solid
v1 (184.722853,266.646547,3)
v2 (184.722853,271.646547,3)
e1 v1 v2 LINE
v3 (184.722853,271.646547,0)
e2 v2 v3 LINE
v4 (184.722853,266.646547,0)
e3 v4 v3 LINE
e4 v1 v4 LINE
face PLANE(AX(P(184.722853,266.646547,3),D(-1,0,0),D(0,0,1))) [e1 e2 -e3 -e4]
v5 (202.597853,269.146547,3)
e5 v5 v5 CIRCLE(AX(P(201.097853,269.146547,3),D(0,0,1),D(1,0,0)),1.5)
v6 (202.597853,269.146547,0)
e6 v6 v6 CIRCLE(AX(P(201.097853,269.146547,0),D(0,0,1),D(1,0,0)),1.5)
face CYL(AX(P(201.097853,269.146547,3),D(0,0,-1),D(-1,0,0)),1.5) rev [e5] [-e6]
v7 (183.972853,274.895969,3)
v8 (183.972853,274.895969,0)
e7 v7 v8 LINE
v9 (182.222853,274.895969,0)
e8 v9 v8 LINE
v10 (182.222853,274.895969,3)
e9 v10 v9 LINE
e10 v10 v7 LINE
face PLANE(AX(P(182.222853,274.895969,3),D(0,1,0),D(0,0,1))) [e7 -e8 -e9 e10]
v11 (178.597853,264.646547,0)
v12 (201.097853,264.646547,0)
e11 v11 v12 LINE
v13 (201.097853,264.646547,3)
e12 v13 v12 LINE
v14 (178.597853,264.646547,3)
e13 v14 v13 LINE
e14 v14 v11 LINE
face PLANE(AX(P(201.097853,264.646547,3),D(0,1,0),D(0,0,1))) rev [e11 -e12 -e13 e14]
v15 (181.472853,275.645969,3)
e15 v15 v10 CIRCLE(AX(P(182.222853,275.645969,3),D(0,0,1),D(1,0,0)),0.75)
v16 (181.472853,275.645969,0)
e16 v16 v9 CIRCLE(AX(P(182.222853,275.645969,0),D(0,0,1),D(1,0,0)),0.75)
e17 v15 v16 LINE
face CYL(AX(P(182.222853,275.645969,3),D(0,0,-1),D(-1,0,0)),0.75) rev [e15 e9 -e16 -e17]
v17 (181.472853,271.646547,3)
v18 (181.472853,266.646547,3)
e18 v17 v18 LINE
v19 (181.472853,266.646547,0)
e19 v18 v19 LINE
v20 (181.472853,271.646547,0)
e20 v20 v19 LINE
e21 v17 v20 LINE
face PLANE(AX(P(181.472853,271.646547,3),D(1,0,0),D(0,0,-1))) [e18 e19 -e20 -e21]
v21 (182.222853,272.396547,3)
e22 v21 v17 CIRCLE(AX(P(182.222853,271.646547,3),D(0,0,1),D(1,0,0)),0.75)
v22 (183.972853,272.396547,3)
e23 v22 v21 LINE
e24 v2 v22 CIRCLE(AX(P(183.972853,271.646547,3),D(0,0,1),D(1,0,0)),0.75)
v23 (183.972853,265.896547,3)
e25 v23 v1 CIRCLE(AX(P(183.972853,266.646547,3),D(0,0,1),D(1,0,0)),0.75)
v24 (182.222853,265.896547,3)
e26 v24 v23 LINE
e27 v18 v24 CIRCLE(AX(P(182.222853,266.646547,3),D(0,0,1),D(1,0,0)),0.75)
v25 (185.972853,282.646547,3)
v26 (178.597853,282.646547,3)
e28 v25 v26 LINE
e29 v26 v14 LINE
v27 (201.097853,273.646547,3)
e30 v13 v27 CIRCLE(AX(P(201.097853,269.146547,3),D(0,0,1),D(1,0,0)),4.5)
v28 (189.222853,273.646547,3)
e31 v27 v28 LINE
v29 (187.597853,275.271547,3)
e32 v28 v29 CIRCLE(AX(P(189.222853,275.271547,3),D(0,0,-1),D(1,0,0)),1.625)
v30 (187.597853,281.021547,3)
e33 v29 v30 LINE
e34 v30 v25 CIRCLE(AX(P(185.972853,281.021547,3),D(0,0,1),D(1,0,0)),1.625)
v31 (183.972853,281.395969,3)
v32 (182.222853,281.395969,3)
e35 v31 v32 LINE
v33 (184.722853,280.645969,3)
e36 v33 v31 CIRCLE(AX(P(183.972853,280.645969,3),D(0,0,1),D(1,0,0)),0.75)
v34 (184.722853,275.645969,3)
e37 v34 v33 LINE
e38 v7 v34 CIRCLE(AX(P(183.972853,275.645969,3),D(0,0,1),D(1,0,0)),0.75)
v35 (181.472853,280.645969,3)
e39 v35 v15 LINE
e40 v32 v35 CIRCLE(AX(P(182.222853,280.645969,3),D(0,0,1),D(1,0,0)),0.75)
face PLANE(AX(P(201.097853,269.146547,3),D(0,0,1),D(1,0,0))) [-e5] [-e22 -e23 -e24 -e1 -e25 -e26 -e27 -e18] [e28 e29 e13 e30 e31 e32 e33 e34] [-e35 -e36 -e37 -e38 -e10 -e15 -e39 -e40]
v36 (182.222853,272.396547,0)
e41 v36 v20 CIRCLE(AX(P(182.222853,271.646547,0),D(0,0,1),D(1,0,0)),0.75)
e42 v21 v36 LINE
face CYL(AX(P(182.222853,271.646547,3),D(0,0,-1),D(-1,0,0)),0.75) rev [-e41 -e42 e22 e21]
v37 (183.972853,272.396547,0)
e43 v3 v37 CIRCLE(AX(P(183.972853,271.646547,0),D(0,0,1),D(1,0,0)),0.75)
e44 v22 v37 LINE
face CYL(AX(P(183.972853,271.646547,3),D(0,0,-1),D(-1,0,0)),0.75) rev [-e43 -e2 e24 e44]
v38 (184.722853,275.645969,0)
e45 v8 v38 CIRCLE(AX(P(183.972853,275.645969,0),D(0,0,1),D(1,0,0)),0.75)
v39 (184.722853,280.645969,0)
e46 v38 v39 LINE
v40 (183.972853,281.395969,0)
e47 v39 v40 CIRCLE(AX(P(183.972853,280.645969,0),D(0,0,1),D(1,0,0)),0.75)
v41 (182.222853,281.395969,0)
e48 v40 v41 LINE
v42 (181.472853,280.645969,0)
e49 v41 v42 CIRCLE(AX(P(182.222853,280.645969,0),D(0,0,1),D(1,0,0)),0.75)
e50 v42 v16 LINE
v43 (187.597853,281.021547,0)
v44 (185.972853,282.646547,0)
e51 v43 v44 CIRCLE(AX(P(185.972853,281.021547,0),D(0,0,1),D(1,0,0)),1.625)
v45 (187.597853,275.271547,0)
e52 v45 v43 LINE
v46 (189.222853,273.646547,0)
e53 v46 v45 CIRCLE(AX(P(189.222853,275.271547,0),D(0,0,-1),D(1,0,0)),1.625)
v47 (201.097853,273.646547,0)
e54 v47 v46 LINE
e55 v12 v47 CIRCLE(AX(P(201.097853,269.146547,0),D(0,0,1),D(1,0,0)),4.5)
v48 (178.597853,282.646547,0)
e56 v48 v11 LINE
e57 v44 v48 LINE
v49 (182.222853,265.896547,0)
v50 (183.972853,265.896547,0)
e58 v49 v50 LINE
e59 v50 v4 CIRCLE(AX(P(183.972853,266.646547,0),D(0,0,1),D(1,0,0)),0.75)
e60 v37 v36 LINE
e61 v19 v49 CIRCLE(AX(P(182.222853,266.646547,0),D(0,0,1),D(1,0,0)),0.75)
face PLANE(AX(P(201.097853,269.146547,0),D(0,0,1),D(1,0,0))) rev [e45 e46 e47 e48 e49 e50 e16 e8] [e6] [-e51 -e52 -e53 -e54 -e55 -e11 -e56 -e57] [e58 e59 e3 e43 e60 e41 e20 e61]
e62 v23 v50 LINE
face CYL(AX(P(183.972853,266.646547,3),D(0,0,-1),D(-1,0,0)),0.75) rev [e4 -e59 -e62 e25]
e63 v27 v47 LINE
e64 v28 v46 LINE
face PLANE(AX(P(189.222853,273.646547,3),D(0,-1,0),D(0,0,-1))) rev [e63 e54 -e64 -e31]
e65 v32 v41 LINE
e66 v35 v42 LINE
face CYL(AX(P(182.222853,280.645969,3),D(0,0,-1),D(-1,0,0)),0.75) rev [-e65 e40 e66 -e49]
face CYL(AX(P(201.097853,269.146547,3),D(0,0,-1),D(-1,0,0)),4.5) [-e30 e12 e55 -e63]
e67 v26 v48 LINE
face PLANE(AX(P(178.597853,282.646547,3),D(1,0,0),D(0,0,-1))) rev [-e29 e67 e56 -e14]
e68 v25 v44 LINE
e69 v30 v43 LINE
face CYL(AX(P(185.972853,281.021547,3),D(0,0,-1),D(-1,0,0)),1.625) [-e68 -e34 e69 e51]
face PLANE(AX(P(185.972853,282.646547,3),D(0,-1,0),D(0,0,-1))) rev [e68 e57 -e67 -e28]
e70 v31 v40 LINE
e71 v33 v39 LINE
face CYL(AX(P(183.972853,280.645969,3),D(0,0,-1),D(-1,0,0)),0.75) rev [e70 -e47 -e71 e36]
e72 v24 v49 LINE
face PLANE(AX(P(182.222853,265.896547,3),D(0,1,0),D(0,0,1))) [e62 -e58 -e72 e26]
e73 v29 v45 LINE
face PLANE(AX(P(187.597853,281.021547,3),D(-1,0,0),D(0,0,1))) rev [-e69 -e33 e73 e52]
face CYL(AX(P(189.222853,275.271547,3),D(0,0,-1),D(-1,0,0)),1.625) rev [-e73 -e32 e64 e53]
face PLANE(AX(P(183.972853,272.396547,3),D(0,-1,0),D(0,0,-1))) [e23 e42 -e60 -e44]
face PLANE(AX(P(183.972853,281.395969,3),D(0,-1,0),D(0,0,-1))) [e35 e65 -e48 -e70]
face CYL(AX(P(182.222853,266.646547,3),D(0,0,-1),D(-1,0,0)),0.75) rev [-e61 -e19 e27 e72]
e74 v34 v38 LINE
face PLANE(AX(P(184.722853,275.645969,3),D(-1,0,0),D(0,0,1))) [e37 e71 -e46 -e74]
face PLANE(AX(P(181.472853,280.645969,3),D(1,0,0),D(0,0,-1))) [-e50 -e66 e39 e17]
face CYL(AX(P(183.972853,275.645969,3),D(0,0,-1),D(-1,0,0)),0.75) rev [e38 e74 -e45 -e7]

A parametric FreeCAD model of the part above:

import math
import FreeCAD as App
import Part
import Sketcher

V = App.Vector
Q = App.Units.Quantity

doc = App.newDocument("Part")
params = doc.addObject("Spreadsheet::Sheet", "Params")
for row, (alias, value) in enumerate([
    ("sketch1_diameter", "3 mm"),
    ("sketch1_radius", "4.5 mm"),
    ("sketch1_height", "18 mm"),
    ("sketch1_height2", "5 mm"),
    ("sketch1_radius2", "0.75 mm"),
    ("pad1_length", "3 mm"),
], start=1):
    params.set(f"A{row}", alias)
    params.set(f"B{row}", "=" + value)
    params.setAlias(f"B{row}", alias)

body = doc.addObject("PartDesign::Body", "Body")

# Sketch on XY plane
sketch1 = doc.addObject("Sketcher::SketchObject", "Sketch")
body.addObject(sketch1)
sketch1.AttachmentSupport = (doc.XY_Plane, [""])
sketch1.MapMode = "FlatFace"
sketch1.addGeometry([
    Part.LineSegment(V(186, 282.6, 0), V(178.6, 282.6, 0)),  # 0
    Part.LineSegment(V(178.6, 282.6, 0), V(178.6, 264.6, 0)),  # 1
    Part.LineSegment(V(178.6, 264.6, 0), V(201.1, 264.6, 0)),  # 2
    Part.ArcOfCircle(Part.Circle(V(201.1, 269.1, 0), V(0, 0, 1), 4.5), math.radians(-90), math.radians(90)),  # 3
    Part.LineSegment(V(201.1, 273.6, 0), V(189.2, 273.6, 0)),  # 4
    Part.ArcOfCircle(Part.Circle(V(189.2, 275.3, 0), V(0, 0, 1), 1.6), math.radians(-180), math.radians(-90)),  # 5
    Part.LineSegment(V(187.6, 275.3, 0), V(187.6, 281, 0)),  # 6
    Part.ArcOfCircle(Part.Circle(V(186, 281, 0), V(0, 0, 1), 1.6), math.radians(0), math.radians(90)),  # 7
    Part.LineSegment(V(184, 265.9, 0), V(182.2, 265.9, 0)),  # 8
    Part.ArcOfCircle(Part.Circle(V(182.2, 266.6, 0), V(0, 0, 1), 0.8), math.radians(180), math.radians(270)),  # 9
    Part.LineSegment(V(181.5, 266.6, 0), V(181.5, 271.6, 0)),  # 10
    Part.ArcOfCircle(Part.Circle(V(182.2, 271.6, 0), V(0, 0, 1), 0.8), math.radians(90), math.radians(180)),  # 11
    Part.LineSegment(V(182.2, 272.4, 0), V(184, 272.4, 0)),  # 12
    Part.ArcOfCircle(Part.Circle(V(184, 271.6, 0), V(0, 0, 1), 0.8), math.radians(0), math.radians(90)),  # 13
    Part.LineSegment(V(184.7, 271.6, 0), V(184.7, 266.6, 0)),  # 14
    Part.ArcOfCircle(Part.Circle(V(184, 266.6, 0), V(0, 0, 1), 0.8), math.radians(-90), math.radians(0)),  # 15
    Part.Circle(V(201.1, 269.1, 0), V(0, 0, 1), 1.5),  # 16
    Part.LineSegment(V(184, 274.9, 0), V(182.2, 274.9, 0)),  # 17
    Part.ArcOfCircle(Part.Circle(V(182.2, 275.6, 0), V(0, 0, 1), 0.8), math.radians(180), math.radians(270)),  # 18
    Part.LineSegment(V(181.5, 275.6, 0), V(181.5, 280.6, 0)),  # 19
    Part.ArcOfCircle(Part.Circle(V(182.2, 280.6, 0), V(0, 0, 1), 0.8), math.radians(90), math.radians(180)),  # 20
    Part.LineSegment(V(182.2, 281.4, 0), V(184, 281.4, 0)),  # 21
    Part.ArcOfCircle(Part.Circle(V(184, 280.6, 0), V(0, 0, 1), 0.8), math.radians(0), math.radians(90)),  # 22
    Part.LineSegment(V(184.7, 280.6, 0), V(184.7, 275.6, 0)),  # 23
    Part.ArcOfCircle(Part.Circle(V(184, 275.6, 0), V(0, 0, 1), 0.8), math.radians(-90), math.radians(0)),  # 24
], False)
sketch1.addConstraint([
    Sketcher.Constraint("Coincident", 0, 2, 1, 1),
    Sketcher.Constraint("Coincident", 1, 2, 2, 1),
    Sketcher.Constraint("Tangent", 2, 2, 3, 1),
    Sketcher.Constraint("Tangent", 3, 2, 4, 1),
    Sketcher.Constraint("Tangent", 4, 2, 5, 2),
    Sketcher.Constraint("Tangent", 5, 1, 6, 1),
    Sketcher.Constraint("Tangent", 6, 2, 7, 1),
    Sketcher.Constraint("Tangent", 7, 2, 0, 1),
    Sketcher.Constraint("Tangent", 8, 2, 9, 2),
    Sketcher.Constraint("Tangent", 9, 1, 10, 1),
    Sketcher.Constraint("Tangent", 10, 2, 11, 2),
    Sketcher.Constraint("Tangent", 11, 1, 12, 1),
    Sketcher.Constraint("Tangent", 12, 2, 13, 2),
    Sketcher.Constraint("Tangent", 13, 1, 14, 1),
    Sketcher.Constraint("Tangent", 14, 2, 15, 2),
    Sketcher.Constraint("Tangent", 15, 1, 8, 1),
    Sketcher.Constraint("Tangent", 17, 2, 18, 2),
    Sketcher.Constraint("Tangent", 18, 1, 19, 1),
    Sketcher.Constraint("Tangent", 19, 2, 20, 2),
    Sketcher.Constraint("Tangent", 20, 1, 21, 1),
    Sketcher.Constraint("Tangent", 21, 2, 22, 2),
    Sketcher.Constraint("Tangent", 22, 1, 23, 1),
    Sketcher.Constraint("Tangent", 23, 2, 24, 2),
    Sketcher.Constraint("Tangent", 24, 1, 17, 1),
    Sketcher.Constraint("Horizontal", 0),
    Sketcher.Constraint("Vertical", 1),
    Sketcher.Constraint("Horizontal", 2),
    Sketcher.Constraint("Horizontal", 4),
    Sketcher.Constraint("Vertical", 6),
    Sketcher.Constraint("Horizontal", 8),
    Sketcher.Constraint("Vertical", 10),
    Sketcher.Constraint("Horizontal", 12),
    Sketcher.Constraint("Vertical", 14),
    Sketcher.Constraint("Horizontal", 17),
    Sketcher.Constraint("Vertical", 19),
    Sketcher.Constraint("Horizontal", 21),
    Sketcher.Constraint("Vertical", 23),
    Sketcher.Constraint("Coincident", 16, 3, 3, 3),
    Sketcher.Constraint("Equal", 5, 7),
    Sketcher.Constraint("Equal", 9, 11),
    Sketcher.Constraint("Equal", 11, 13),
    Sketcher.Constraint("Equal", 13, 15),
    Sketcher.Constraint("Equal", 15, 18),
    Sketcher.Constraint("Equal", 18, 20),
    Sketcher.Constraint("Equal", 20, 22),
    Sketcher.Constraint("Equal", 22, 24),
    Sketcher.Constraint("Vertical", 11, 3, 18, 3),
    Sketcher.Constraint("Vertical", 15, 3, 22, 3),
    Sketcher.Constraint("Equal", 14, 19),
    Sketcher.Constraint("Diameter", 16, Q("3 mm")),
    Sketcher.Constraint("Radius", 3, Q("4.5 mm")),
    Sketcher.Constraint("DistanceY", 1, 2, 1, 1, Q("18 mm")),
    Sketcher.Constraint("DistanceY", 10, 1, 10, 2, Q("5 mm")),
    Sketcher.Constraint("Radius", 9, Q("0.75 mm")),
    Sketcher.Constraint("DistanceX", 2, 1, 2, 2, Q("22.5 mm")),
    Sketcher.Constraint("Radius", 5, Q("1.625 mm")),
    Sketcher.Constraint("DistanceX", 9, 3, 5, 3, Q("7 mm")),
    Sketcher.Constraint("DistanceX", 13, 3, 7, 3, Q("2 mm")),
    Sketcher.Constraint("DistanceY", 1, 2, 9, 3, Q("2 mm")),
    Sketcher.Constraint("DistanceX", 0, 2, 0, 1, Q("7.375 mm")),
    Sketcher.Constraint("DistanceY", -1, 1, 18, 3, Q("275.645969 mm")),
    Sketcher.Constraint("DistanceY", 11, 3, 18, 3, Q("3.999421 mm")),
    Sketcher.Constraint("DistanceX", -1, 1, 3, 3, Q("201.097853 mm")),
])
sketch1.setExpression("Constraints[49]", "Params.sketch1_diameter")
sketch1.setExpression("Constraints[50]", "Params.sketch1_radius")
sketch1.setExpression("Constraints[51]", "Params.sketch1_height")
sketch1.setExpression("Constraints[52]", "Params.sketch1_height2")
sketch1.setExpression("Constraints[53]", "Params.sketch1_radius2")
pad1 = doc.addObject("PartDesign::Pad", "Pad")
body.addObject(pad1)
pad1.Profile = sketch1
pad1.setExpression("Length", "Params.pad1_length")

doc.recompute()
